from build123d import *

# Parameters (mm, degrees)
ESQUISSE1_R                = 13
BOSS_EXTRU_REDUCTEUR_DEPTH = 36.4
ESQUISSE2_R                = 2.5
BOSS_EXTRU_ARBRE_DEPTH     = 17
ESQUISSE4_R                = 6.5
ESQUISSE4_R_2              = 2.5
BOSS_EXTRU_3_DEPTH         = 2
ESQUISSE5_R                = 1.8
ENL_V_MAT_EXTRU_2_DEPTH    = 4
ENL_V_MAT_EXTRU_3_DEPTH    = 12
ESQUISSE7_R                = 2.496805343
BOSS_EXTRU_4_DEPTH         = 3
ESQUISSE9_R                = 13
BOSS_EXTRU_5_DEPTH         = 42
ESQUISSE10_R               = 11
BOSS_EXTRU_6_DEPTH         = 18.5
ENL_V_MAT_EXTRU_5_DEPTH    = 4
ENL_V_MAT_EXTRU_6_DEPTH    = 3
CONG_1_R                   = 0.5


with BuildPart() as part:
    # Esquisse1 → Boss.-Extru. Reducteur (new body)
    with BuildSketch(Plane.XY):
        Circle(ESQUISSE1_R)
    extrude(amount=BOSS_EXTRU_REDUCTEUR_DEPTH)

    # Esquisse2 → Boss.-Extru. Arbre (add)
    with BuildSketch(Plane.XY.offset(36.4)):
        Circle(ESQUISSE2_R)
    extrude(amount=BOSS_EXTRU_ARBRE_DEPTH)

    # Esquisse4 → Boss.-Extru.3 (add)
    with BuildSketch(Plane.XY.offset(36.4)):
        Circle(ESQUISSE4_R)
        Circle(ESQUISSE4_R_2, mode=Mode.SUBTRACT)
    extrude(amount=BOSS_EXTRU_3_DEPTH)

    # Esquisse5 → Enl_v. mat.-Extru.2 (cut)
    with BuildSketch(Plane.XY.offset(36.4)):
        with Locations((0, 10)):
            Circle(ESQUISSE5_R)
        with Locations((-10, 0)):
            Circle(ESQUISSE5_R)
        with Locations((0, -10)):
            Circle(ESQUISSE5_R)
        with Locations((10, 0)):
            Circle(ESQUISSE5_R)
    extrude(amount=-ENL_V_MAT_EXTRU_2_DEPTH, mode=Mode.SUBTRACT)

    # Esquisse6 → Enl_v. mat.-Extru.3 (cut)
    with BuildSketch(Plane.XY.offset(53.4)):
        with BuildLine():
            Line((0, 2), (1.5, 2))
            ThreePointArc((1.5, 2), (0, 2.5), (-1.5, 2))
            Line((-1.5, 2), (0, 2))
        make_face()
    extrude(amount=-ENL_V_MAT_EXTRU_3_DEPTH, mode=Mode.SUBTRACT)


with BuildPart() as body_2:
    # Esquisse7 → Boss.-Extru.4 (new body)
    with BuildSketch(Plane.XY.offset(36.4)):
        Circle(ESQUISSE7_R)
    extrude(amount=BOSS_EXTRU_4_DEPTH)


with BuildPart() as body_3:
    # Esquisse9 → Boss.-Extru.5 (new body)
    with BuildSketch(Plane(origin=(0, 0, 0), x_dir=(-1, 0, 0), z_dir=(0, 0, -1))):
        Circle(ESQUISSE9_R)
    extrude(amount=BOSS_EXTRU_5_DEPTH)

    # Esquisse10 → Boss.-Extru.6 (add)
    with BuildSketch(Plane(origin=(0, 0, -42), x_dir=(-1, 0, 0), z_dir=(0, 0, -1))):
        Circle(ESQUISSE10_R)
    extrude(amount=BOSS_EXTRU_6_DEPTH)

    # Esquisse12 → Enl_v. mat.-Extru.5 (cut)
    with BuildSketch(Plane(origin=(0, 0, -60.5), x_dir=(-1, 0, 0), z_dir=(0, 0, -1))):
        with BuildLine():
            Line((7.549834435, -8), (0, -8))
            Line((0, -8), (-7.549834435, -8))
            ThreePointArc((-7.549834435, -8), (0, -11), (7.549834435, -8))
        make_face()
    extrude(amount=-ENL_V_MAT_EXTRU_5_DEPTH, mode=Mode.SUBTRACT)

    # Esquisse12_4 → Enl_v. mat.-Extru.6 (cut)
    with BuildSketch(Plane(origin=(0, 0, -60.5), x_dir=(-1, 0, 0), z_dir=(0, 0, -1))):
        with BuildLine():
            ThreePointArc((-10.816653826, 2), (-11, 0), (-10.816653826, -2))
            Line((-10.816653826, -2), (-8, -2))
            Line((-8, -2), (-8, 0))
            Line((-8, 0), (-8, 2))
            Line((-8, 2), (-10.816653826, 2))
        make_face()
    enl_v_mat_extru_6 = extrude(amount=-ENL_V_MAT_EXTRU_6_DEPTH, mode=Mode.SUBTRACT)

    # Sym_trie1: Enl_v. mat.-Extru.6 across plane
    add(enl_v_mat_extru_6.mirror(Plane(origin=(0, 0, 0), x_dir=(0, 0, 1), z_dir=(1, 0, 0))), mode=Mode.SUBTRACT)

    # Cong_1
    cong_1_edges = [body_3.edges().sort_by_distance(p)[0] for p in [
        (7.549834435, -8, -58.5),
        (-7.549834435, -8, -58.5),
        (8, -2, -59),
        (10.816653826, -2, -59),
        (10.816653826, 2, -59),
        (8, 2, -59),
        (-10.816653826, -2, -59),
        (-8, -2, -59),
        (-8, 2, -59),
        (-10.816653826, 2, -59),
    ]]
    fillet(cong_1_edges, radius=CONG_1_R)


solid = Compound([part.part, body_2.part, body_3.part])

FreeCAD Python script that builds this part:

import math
import FreeCAD as App
import Part
import Sketcher


def edges_at(feature, points):
    """Names of the edges that pass closest to the given points."""
    edges = feature.Shape.Edges
    near = lambda p: min(range(len(edges)), key=lambda i: edges[i].distToShape(Part.Vertex(*p))[0])
    return sorted({f"Edge{near(p) + 1}" for p in points})

doc = App.newDocument("Part")
body = doc.addObject("PartDesign::Body", "Body")

# Sketch on XY plane
sketch1 = body.newObject("Sketcher::SketchObject", "Sketch")
sketch1.AttachmentSupport = (doc.getObject("XY_Plane"), [""])
sketch1.MapMode = "FlatFace"
sketch1.addGeometry(Part.Circle(App.Vector(0, 0, 0), App.Vector(0, 0, 1), 13), False)
sketch1.addConstraint([
    Sketcher.Constraint("Coincident", 0, 3, -1, 1),
    Sketcher.Constraint("Diameter", 0, 26.0),
])
pad1 = body.newObject("PartDesign::Pad", "Pad")
pad1.Profile = sketch1
pad1.Length = 36.4

# Sketch on XY plane
sketch2 = body.newObject("Sketcher::SketchObject", "Sketch001")
sketch2.AttachmentSupport = (doc.getObject("XY_Plane"), [""])
sketch2.MapMode = "FlatFace"
sketch2.AttachmentOffset = App.Placement(App.Vector(0, 0, 36.4), App.Rotation())
sketch2.addGeometry(Part.Circle(App.Vector(0, 0, 0), App.Vector(0, 0, 1), 2.5), False)
sketch2.addConstraint([
    Sketcher.Constraint("Coincident", 0, 3, -1, 1),
    Sketcher.Constraint("Diameter", 0, 5.0),
])
pad2 = body.newObject("PartDesign::Pad", "Pad001")
pad2.Profile = sketch2
pad2.Length = 17

# Sketch on XY plane
sketch3 = body.newObject("Sketcher::SketchObject", "Sketch002")
sketch3.AttachmentSupport = (doc.getObject("XY_Plane"), [""])
sketch3.MapMode = "FlatFace"
sketch3.AttachmentOffset = App.Placement(App.Vector(0, 0, 36.4), App.Rotation())
sketch3.addGeometry([
    Part.Circle(App.Vector(0, 0, 0), App.Vector(0, 0, 1), 6.5),
    Part.Circle(App.Vector(0, 0, 0), App.Vector(0, 0, 1), 2.5),
], False)
sketch3.addConstraint([
    Sketcher.Constraint("Coincident", 0, 3, -1, 1),
    Sketcher.Constraint("Coincident", 1, 3, -1, 1),
    Sketcher.Constraint("Diameter", 0, 13.0),
    Sketcher.Constraint("Diameter", 1, 5.0),
])
pad3 = body.newObject("PartDesign::Pad", "Pad002")
pad3.Profile = sketch3
pad3.Length = 2

# Sketch on XY plane
sketch4 = body.newObject("Sketcher::SketchObject", "Sketch003")
sketch4.AttachmentSupport = (doc.getObject("XY_Plane"), [""])
sketch4.MapMode = "FlatFace"
sketch4.AttachmentOffset = App.Placement(App.Vector(0, 0, 36.4), App.Rotation())
sketch4.addGeometry([
    Part.Circle(App.Vector(0, 10, 0), App.Vector(0, 0, 1), 1.8),
    Part.Circle(App.Vector(-10, 0, 0), App.Vector(0, 0, 1), 1.8),
    Part.Circle(App.Vector(0, -10, 0), App.Vector(0, 0, 1), 1.8),
    Part.Circle(App.Vector(10, 0, 0), App.Vector(0, 0, 1), 1.8),
], False)
sketch4.addConstraint([
    Sketcher.Constraint("Equal", 0, 1),
    Sketcher.Constraint("Equal", 1, 2),
    Sketcher.Constraint("Equal", 2, 3),
    Sketcher.Constraint("Symmetric", 0, 3, 2, 3, -1, 1),
    Sketcher.Constraint("Symmetric", 1, 3, 3, 3, -1, 1),
    Sketcher.Constraint("PointOnObject", 0, 3, -2),
    Sketcher.Constraint("PointOnObject", 1, 3, -1),
    Sketcher.Constraint("Diameter", 0, 3.6),
    Sketcher.Constraint("DistanceY", -1, 1, 0, 3, 10.0),
    Sketcher.Constraint("DistanceX", 1, 3, -1, 1, 10.0),
])
pocket1 = body.newObject("PartDesign::Pocket", "Pocket")
pocket1.Profile = sketch4
pocket1.Length = 4

# Sketch on XY plane
sketch5 = body.newObject("Sketcher::SketchObject", "Sketch004")
sketch5.AttachmentSupport = (doc.getObject("XY_Plane"), [""])
sketch5.MapMode = "FlatFace"
sketch5.AttachmentOffset = App.Placement(App.Vector(0, 0, 53.4), App.Rotation())
sketch5.addGeometry([
    Part.ArcOfCircle(Part.Circle(App.Vector(0, 0, 0), App.Vector(0, 0, 1), 2.5), math.radians(53), math.radians(127)),
    Part.LineSegment(App.Vector(-1.5, 2, 0), App.Vector(1.5, 2, 0)),
], False)
sketch5.addConstraint([
    Sketcher.Constraint("Coincident", 0, 1, 1, 2),
    Sketcher.Constraint("Coincident", 1, 1, 0, 2),
    Sketcher.Constraint("Horizontal", 1),
    Sketcher.Constraint("Coincident", 0, 3, -1, 1),
    Sketcher.Constraint("Radius", 0, 2.5),
    Sketcher.Constraint("DistanceX", 1, 1, 1, 2, 3.0),
])
pocket2 = body.newObject("PartDesign::Pocket", "Pocket001")
pocket2.Profile = sketch5
pocket2.Length = 12
body2 = doc.addObject("PartDesign::Body", "Body001")

# Sketch on XY plane
sketch6 = body2.newObject("Sketcher::SketchObject", "Sketch005")
sketch6.AttachmentSupport = (doc.getObject("XY_Plane001"), [""])
sketch6.MapMode = "FlatFace"
sketch6.AttachmentOffset = App.Placement(App.Vector(0, 0, 36.4), App.Rotation())
sketch6.addGeometry(Part.Circle(App.Vector(0, 0, 0), App.Vector(0, 0, 1), 2.5), False)
sketch6.addConstraint([
    Sketcher.Constraint("Coincident", 0, 3, -1, 1),
    Sketcher.Constraint("Diameter", 0, 4.993611),
])
pad4 = body2.newObject("PartDesign::Pad", "Pad003")
pad4.Profile = sketch6
pad4.Length = 3
body3 = doc.addObject("PartDesign::Body", "Body002")

# Sketch on XY plane
sketch7 = body3.newObject("Sketcher::SketchObject", "Sketch006")
sketch7.AttachmentSupport = (doc.getObject("XY_Plane002"), [""])
sketch7.MapMode = "FlatFace"
sketch7.addGeometry(Part.Circle(App.Vector(0, 0, 0), App.Vector(0, 0, 1), 13), False)
sketch7.addConstraint([
    Sketcher.Constraint("Coincident", 0, 3, -1, 1),
    Sketcher.Constraint("Diameter", 0, 26.0),
])
pad5 = body3.newObject("PartDesign::Pad", "Pad004")
pad5.Profile = sketch7
pad5.Length = 42
pad5.Reversed = True

# Sketch on XY plane
sketch8 = body3.newObject("Sketcher::SketchObject", "Sketch007")
sketch8.AttachmentSupport = (doc.getObject("XY_Plane002"), [""])
sketch8.MapMode = "FlatFace"
sketch8.AttachmentOffset = App.Placement(App.Vector(0, 0, -42), App.Rotation())
sketch8.addGeometry(Part.Circle(App.Vector(0, 0, 0), App.Vector(0, 0, 1), 11), False)
sketch8.addConstraint([
    Sketcher.Constraint("Coincident", 0, 3, -1, 1),
    Sketcher.Constraint("Diameter", 0, 22.0),
])
pad6 = body3.newObject("PartDesign::Pad", "Pad005")
pad6.Profile = sketch8
pad6.Length = 18.5
pad6.Reversed = True

# Sketch on XY plane
sketch9 = body3.newObject("Sketcher::SketchObject", "Sketch008")
sketch9.AttachmentSupport = (doc.getObject("XY_Plane002"), [""])
sketch9.MapMode = "FlatFace"
sketch9.AttachmentOffset = App.Placement(App.Vector(0, 0, -60.5), App.Rotation())
sketch9.addGeometry([
    Part.LineSegment(App.Vector(-8, -8, 0), App.Vector(8, -8, 0)),
    Part.ArcOfCircle(Part.Circle(App.Vector(0, 0, 0), App.Vector(0, 0, 1), 11), math.radians(-133), math.radians(-47)),
], False)
sketch9.addConstraint([
    Sketcher.Constraint("Coincident", 0, 1, 1, 1),
    Sketcher.Constraint("Coincident", 1, 2, 0, 2),
    Sketcher.Constraint("Horizontal", 0),
    Sketcher.Constraint("Coincident", 1, 3, -1, 1),
    Sketcher.Constraint("Radius", 1, 11.0),
    Sketcher.Constraint("DistanceY", 0, 1, -1, 1, 8.0),
])
pocket3 = body3.newObject("PartDesign::Pocket", "Pocket002")
pocket3.Profile = sketch9
pocket3.Length = 4
pocket3.Reversed = True

# Sketch on XY plane
sketch10 = body3.newObject("Sketcher::SketchObject", "Sketch009")
sketch10.AttachmentSupport = (doc.getObject("XY_Plane002"), [""])
sketch10.MapMode = "FlatFace"
sketch10.AttachmentOffset = App.Placement(App.Vector(0, 0, -60.5), App.Rotation())
sketch10.addGeometry([
    Part.ArcOfCircle(Part.Circle(App.Vector(0, 0, 0), App.Vector(0, 0, 1), 11), math.radians(-10), math.radians(10)),
    Part.LineSegment(App.Vector(10.8, -2, 0), App.Vector(8, -2, 0)),
    Part.LineSegment(App.Vector(8, -2, 0), App.Vector(8, 2, 0)),
    Part.LineSegment(App.Vector(8, 2, 0), App.Vector(10.8, 2, 0)),
], False)
sketch10.addConstraint([
    Sketcher.Constraint("Coincident", 0, 1, 1, 1),
    Sketcher.Constraint("Coincident", 1, 2, 2, 1),
    Sketcher.Constraint("Coincident", 2, 2, 3, 1),
    Sketcher.Constraint("Coincident", 3, 2, 0, 2),
    Sketcher.Constraint("Horizontal", 1),
    Sketcher.Constraint("Vertical", 2),
    Sketcher.Constraint("Horizontal", 3),
    Sketcher.Constraint("Coincident", 0, 3, -1, 1),
    Sketcher.Constraint("Vertical", 0, 1, 3, 2),
    Sketcher.Constraint("Radius", 0, 11.0),
    Sketcher.Constraint("DistanceY", 2, 1, 2, 2, 4.0),
    Sketcher.Constraint("DistanceX", -1, 1, 1, 2, 8.0),
])
pocket4 = body3.newObject("PartDesign::Pocket", "Pocket003")
pocket4.Profile = sketch10
pocket4.Length = 3
pocket4.Reversed = True
doc.recompute()

mirrored = body3.newObject("PartDesign::Mirrored", "Mirrored")
mirrored.Originals = [pocket4]
mirrored.MirrorPlane = (doc.getObject("YZ_Plane002"), [""])
body3.Tip = mirrored
doc.recompute()

fillet = body3.newObject("PartDesign::Fillet", "Fillet")
fillet.Base = (mirrored, edges_at(mirrored, [
    (7.55, -8, -58.5),
    (-7.55, -8, -58.5),
    (8, -2, -59),
    (10.817, -2, -59),
    (10.817, 2, -59),
    (8, 2, -59),
    (-10.817, -2, -59),
    (-8, -2, -59),
    (-8, 2, -59),
    (-10.817, 2, -59),
]))
fillet.Radius = 0.5

doc.recompute()
